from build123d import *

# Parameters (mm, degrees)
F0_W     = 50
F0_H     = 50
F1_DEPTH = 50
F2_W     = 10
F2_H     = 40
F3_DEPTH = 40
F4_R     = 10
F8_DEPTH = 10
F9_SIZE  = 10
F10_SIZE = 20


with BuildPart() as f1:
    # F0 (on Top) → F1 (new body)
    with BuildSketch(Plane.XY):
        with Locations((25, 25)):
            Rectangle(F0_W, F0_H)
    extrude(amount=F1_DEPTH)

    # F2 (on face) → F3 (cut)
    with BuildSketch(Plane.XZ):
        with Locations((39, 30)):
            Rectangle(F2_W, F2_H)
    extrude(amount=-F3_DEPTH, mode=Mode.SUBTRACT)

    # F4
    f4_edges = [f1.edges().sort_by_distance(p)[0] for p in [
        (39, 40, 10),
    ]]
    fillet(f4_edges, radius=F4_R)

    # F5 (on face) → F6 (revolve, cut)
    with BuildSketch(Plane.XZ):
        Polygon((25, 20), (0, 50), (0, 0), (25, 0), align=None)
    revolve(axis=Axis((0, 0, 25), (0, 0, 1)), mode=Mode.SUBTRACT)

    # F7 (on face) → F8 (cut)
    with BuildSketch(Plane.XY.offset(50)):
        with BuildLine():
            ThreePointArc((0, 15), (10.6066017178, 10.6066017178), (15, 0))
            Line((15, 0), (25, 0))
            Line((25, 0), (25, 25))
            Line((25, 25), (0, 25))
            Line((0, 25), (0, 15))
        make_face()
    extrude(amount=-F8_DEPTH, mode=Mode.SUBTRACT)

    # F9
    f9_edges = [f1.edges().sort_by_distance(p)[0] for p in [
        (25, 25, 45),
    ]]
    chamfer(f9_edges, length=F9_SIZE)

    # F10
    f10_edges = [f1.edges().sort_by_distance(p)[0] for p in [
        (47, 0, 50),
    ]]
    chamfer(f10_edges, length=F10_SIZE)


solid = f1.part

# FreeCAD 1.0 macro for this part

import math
import FreeCAD as App
import Part
import Sketcher
from FreeCAD import Vector
Q = App.Units.Quantity


def edges_at(feature, points):
    """Names of the edges that pass closest to the given points."""
    edges = feature.Shape.Edges
    near = lambda p: min(range(len(edges)), key=lambda i: edges[i].distToShape(Part.Vertex(*p))[0])
    return sorted({f"Edge{near(p) + 1}" for p in points})

doc = App.newDocument("Part")
body = doc.addObject("PartDesign::Body", "Body")

# Sketch on XY plane
sketch1 = body.newObject("Sketcher::SketchObject", "Sketch")
sketch1.AttachmentSupport = (doc.getObject("XY_Plane"), [""])
sketch1.MapMode = "FlatFace"
sketch1.addGeometry(Part.LineSegment(Vector(0, 50, 0), Vector(0, 0, 0)), False)
sketch1.addGeometry(Part.LineSegment(Vector(0, 0, 0), Vector(50, 0, 0)), False)
sketch1.addGeometry(Part.LineSegment(Vector(50, 0, 0), Vector(50, 50, 0)), False)
sketch1.addGeometry(Part.LineSegment(Vector(50, 50, 0), Vector(0, 50, 0)), False)
sketch1.addConstraint(Sketcher.Constraint("Coincident", 0, 2, 1, 1))
sketch1.addConstraint(Sketcher.Constraint("Coincident", 1, 2, 2, 1))
sketch1.addConstraint(Sketcher.Constraint("Coincident", 2, 2, 3, 1))
sketch1.addConstraint(Sketcher.Constraint("Coincident", 3, 2, 0, 1))
sketch1.addConstraint(Sketcher.Constraint("Vertical", 0))
sketch1.addConstraint(Sketcher.Constraint("Horizontal", 1))
sketch1.addConstraint(Sketcher.Constraint("Vertical", 2))
sketch1.addConstraint(Sketcher.Constraint("Horizontal", 3))
sketch1.addConstraint(Sketcher.Constraint("Coincident", 0, 2, -1, 1))
sketch1.addConstraint(Sketcher.Constraint("Equal", 3, 0))
sketch1.addConstraint(Sketcher.Constraint("DistanceX", 1, 1, 1, 2, Q("50 mm")))
pad1 = body.newObject("PartDesign::Pad", "Pad")
pad1.Profile = sketch1
pad1.Length = 50

# Sketch on XZ plane
sketch2 = body.newObject("Sketcher::SketchObject", "Sketch001")
sketch2.AttachmentSupport = (doc.getObject("XZ_Plane"), [""])
sketch2.MapMode = "FlatFace"
sketch2.addGeometry(Part.LineSegment(Vector(34, 50, 0), Vector(34, 10, 0)), False)
sketch2.addGeometry(Part.LineSegment(Vector(34, 10, 0), Vector(44, 10, 0)), False)
sketch2.addGeometry(Part.LineSegment(Vector(44, 10, 0), Vector(44, 50, 0)), False)
sketch2.addGeometry(Part.LineSegment(Vector(44, 50, 0), Vector(34, 50, 0)), False)
sketch2.addConstraint(Sketcher.Constraint("Coincident", 0, 2, 1, 1))
sketch2.addConstraint(Sketcher.Constraint("Coincident", 1, 2, 2, 1))
sketch2.addConstraint(Sketcher.Constraint("Coincident", 2, 2, 3, 1))
sketch2.addConstraint(Sketcher.Constraint("Coincident", 3, 2, 0, 1))
sketch2.addConstraint(Sketcher.Constraint("Vertical", 0))
sketch2.addConstraint(Sketcher.Constraint("Horizontal", 1))
sketch2.addConstraint(Sketcher.Constraint("Vertical", 2))
sketch2.addConstraint(Sketcher.Constraint("Horizontal", 3))
sketch2.addConstraint(Sketcher.Constraint("DistanceX", 1, 1, 1, 2, Q("10 mm")))
sketch2.addConstraint(Sketcher.Constraint("DistanceY", 0, 2, 0, 1, Q("40 mm")))
sketch2.addConstraint(Sketcher.Constraint("DistanceX", -1, 1, 0, 2, Q("34 mm")))
sketch2.addConstraint(Sketcher.Constraint("DistanceY", -1, 1, 0, 2, Q("10 mm")))
pocket1 = body.newObject("PartDesign::Pocket", "Pocket")
pocket1.Profile = sketch2
pocket1.Length = 40
doc.recompute()

fillet = body.newObject("PartDesign::Fillet", "Fillet")
fillet.Base = (pocket1, edges_at(pocket1, [(39, 40, 10)]))
fillet.Radius = 10

# Sketch on XZ plane
sketch3 = body.newObject("Sketcher::SketchObject", "Sketch002")
sketch3.AttachmentSupport = (doc.getObject("XZ_Plane"), [""])
sketch3.MapMode = "FlatFace"
sketch3.addGeometry(Part.LineSegment(Vector(25, 20, 0), Vector(0, 50, 0)), False)
sketch3.addGeometry(Part.LineSegment(Vector(0, 50, 0), Vector(0, 0, 0)), False)
sketch3.addGeometry(Part.LineSegment(Vector(0, 0, 0), Vector(25, 0, 0)), False)
sketch3.addGeometry(Part.LineSegment(Vector(25, 0, 0), Vector(25, 20, 0)), False)
sketch3.addConstraint(Sketcher.Constraint("Coincident", 0, 2, 1, 1))
sketch3.addConstraint(Sketcher.Constraint("Coincident", 1, 2, 2, 1))
sketch3.addConstraint(Sketcher.Constraint("Coincident", 2, 2, 3, 1))
sketch3.addConstraint(Sketcher.Constraint("Coincident", 3, 2, 0, 1))
sketch3.addConstraint(Sketcher.Constraint("Vertical", 1))
sketch3.addConstraint(Sketcher.Constraint("Horizontal", 2))
sketch3.addConstraint(Sketcher.Constraint("Vertical", 3))
sketch3.addConstraint(Sketcher.Constraint("Coincident", 1, 2, -1, 1))
sketch3.addConstraint(Sketcher.Constraint("DistanceX", 2, 1, 2, 2, Q("25 mm")))
sketch3.addConstraint(Sketcher.Constraint("DistanceY", 1, 2, 1, 1, Q("50 mm")))
sketch3.addConstraint(Sketcher.Constraint("DistanceY", 3, 1, 3, 2, Q("20 mm")))
groove = body.newObject("PartDesign::Groove", "Groove")
groove.Profile = sketch3
groove.ReferenceAxis = (sketch3, ["V_Axis"])
groove.Angle = 360

# Sketch on XY plane
sketch4 = body.newObject("Sketcher::SketchObject", "Sketch003")
sketch4.AttachmentSupport = (doc.getObject("XY_Plane"), [""])
sketch4.MapMode = "FlatFace"
sketch4.AttachmentOffset = App.Placement(Vector(0, 0, 50), App.Rotation())
sketch4.addGeometry(Part.ArcOfCircle(Part.Circle(Vector(0, 0, 0), Vector(0, 0, 1), 15), math.radians(0), math.radians(90)), False)
sketch4.addGeometry(Part.LineSegment(Vector(15, 0, 0), Vector(25, 0, 0)), False)
sketch4.addGeometry(Part.LineSegment(Vector(25, 0, 0), Vector(25, 25, 0)), False)
sketch4.addGeometry(Part.LineSegment(Vector(25, 25, 0), Vector(0, 25, 0)), False)
sketch4.addGeometry(Part.LineSegment(Vector(0, 25, 0), Vector(0, 15, 0)), False)
sketch4.addConstraint(Sketcher.Constraint("Coincident", 0, 1, 1, 1))
sketch4.addConstraint(Sketcher.Constraint("Coincident", 1, 2, 2, 1))
sketch4.addConstraint(Sketcher.Constraint("Coincident", 2, 2, 3, 1))
sketch4.addConstraint(Sketcher.Constraint("Coincident", 3, 2, 4, 1))
sketch4.addConstraint(Sketcher.Constraint("Coincident", 4, 2, 0, 2))
sketch4.addConstraint(Sketcher.Constraint("Horizontal", 1))
sketch4.addConstraint(Sketcher.Constraint("Vertical", 2))
sketch4.addConstraint(Sketcher.Constraint("Horizontal", 3))
sketch4.addConstraint(Sketcher.Constraint("Vertical", 4))
sketch4.addConstraint(Sketcher.Constraint("Coincident", 0, 3, -1, 1))
sketch4.addConstraint(Sketcher.Constraint("PointOnObject", 0, 1, -1))
sketch4.addConstraint(Sketcher.Constraint("PointOnObject", 3, 2, -2))
sketch4.addConstraint(Sketcher.Constraint("Equal", 3, 2))
sketch4.addConstraint(Sketcher.Constraint("Radius", 0, Q("15 mm")))
sketch4.addConstraint(Sketcher.Constraint("DistanceX", 1, 1, 1, 2, Q("10 mm")))
pocket2 = body.newObject("PartDesign::Pocket", "Pocket001")
pocket2.Profile = sketch4
pocket2.Length = 10
doc.recompute()

chamfer = body.newObject("PartDesign::Chamfer", "Chamfer")
chamfer.Base = (pocket2, edges_at(pocket2, [(25, 25, 45)]))
chamfer.Size = 10
doc.recompute()

chamfer2 = body.newObject("PartDesign::Chamfer", "Chamfer001")
chamfer2.Base = (chamfer, edges_at(chamfer, [(47, 0, 50)]))
chamfer2.Size = 20

doc.recompute()
